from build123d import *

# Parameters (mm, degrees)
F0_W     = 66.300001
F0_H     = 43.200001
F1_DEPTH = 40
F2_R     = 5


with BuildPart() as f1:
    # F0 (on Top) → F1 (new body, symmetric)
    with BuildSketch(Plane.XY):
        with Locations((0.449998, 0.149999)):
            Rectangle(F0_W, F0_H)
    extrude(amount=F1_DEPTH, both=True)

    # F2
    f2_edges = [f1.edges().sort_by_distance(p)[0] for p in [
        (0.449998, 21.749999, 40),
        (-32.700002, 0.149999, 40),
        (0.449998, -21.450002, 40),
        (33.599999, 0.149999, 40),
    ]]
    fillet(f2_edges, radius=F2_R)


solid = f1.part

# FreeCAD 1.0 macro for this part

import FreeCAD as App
import Part
import Sketcher
Q = App.Units.Quantity


def edges_at(feature, points):
    """Names of the edges that pass closest to the given points."""
    edges = feature.Shape.Edges
    near = lambda p: min(range(len(edges)), key=lambda i: edges[i].distToShape(Part.Vertex(*p))[0])
    return sorted({f"Edge{near(p) + 1}" for p in points})

doc = App.newDocument("Part")
body = doc.addObject("PartDesign::Body", "Body")

# Sketch on XY plane
sketch1 = body.newObject("Sketcher::SketchObject", "Sketch")
sketch1.AttachmentSupport = (doc.getObject("XY_Plane"), [""])
sketch1.MapMode = "FlatFace"
sketch1.addGeometry(Part.LineSegment(App.Vector(-32.700002, 21.75, 0), App.Vector(-32.700002, -21.450001, 0)), False)
sketch1.addGeometry(Part.LineSegment(App.Vector(-32.700002, -21.450001, 0), App.Vector(33.599998, -21.450001, 0)), False)
sketch1.addGeometry(Part.LineSegment(App.Vector(33.599998, -21.450001, 0), App.Vector(33.599998, 21.75, 0)), False)
sketch1.addGeometry(Part.LineSegment(App.Vector(33.599998, 21.75, 0), App.Vector(-32.700002, 21.75, 0)), False)
sketch1.addConstraint(Sketcher.Constraint("Coincident", 0, 2, 1, 1))
sketch1.addConstraint(Sketcher.Constraint("Coincident", 1, 2, 2, 1))
sketch1.addConstraint(Sketcher.Constraint("Coincident", 2, 2, 3, 1))
sketch1.addConstraint(Sketcher.Constraint("Coincident", 3, 2, 0, 1))
sketch1.addConstraint(Sketcher.Constraint("Vertical", 0))
sketch1.addConstraint(Sketcher.Constraint("Horizontal", 1))
sketch1.addConstraint(Sketcher.Constraint("Vertical", 2))
sketch1.addConstraint(Sketcher.Constraint("Horizontal", 3))
sketch1.addConstraint(Sketcher.Constraint("DistanceX", 1, 1, 1, 2, Q("66.300001 mm")))
sketch1.addConstraint(Sketcher.Constraint("DistanceY", 0, 2, 0, 1, Q("43.200001 mm")))
sketch1.addConstraint(Sketcher.Constraint("DistanceX", -1, 1, 1, 2, Q("33.599998 mm")))
sketch1.addConstraint(Sketcher.Constraint("DistanceY", 0, 2, -1, 1, Q("21.450001 mm")))
pad1 = body.newObject("PartDesign::Pad", "Pad")
pad1.Profile = sketch1
pad1.Length = 80
pad1.Midplane = True
doc.recompute()

fillet = body.newObject("PartDesign::Fillet", "Fillet")
fillet.Base = (pad1, edges_at(pad1, [
    (0.45, 21.75, 40),
    (-32.7, 0.15, 40),
    (0.45, -21.45, 40),
    (33.6, 0.15, 40),
]))
fillet.Radius = 5

doc.recompute()
